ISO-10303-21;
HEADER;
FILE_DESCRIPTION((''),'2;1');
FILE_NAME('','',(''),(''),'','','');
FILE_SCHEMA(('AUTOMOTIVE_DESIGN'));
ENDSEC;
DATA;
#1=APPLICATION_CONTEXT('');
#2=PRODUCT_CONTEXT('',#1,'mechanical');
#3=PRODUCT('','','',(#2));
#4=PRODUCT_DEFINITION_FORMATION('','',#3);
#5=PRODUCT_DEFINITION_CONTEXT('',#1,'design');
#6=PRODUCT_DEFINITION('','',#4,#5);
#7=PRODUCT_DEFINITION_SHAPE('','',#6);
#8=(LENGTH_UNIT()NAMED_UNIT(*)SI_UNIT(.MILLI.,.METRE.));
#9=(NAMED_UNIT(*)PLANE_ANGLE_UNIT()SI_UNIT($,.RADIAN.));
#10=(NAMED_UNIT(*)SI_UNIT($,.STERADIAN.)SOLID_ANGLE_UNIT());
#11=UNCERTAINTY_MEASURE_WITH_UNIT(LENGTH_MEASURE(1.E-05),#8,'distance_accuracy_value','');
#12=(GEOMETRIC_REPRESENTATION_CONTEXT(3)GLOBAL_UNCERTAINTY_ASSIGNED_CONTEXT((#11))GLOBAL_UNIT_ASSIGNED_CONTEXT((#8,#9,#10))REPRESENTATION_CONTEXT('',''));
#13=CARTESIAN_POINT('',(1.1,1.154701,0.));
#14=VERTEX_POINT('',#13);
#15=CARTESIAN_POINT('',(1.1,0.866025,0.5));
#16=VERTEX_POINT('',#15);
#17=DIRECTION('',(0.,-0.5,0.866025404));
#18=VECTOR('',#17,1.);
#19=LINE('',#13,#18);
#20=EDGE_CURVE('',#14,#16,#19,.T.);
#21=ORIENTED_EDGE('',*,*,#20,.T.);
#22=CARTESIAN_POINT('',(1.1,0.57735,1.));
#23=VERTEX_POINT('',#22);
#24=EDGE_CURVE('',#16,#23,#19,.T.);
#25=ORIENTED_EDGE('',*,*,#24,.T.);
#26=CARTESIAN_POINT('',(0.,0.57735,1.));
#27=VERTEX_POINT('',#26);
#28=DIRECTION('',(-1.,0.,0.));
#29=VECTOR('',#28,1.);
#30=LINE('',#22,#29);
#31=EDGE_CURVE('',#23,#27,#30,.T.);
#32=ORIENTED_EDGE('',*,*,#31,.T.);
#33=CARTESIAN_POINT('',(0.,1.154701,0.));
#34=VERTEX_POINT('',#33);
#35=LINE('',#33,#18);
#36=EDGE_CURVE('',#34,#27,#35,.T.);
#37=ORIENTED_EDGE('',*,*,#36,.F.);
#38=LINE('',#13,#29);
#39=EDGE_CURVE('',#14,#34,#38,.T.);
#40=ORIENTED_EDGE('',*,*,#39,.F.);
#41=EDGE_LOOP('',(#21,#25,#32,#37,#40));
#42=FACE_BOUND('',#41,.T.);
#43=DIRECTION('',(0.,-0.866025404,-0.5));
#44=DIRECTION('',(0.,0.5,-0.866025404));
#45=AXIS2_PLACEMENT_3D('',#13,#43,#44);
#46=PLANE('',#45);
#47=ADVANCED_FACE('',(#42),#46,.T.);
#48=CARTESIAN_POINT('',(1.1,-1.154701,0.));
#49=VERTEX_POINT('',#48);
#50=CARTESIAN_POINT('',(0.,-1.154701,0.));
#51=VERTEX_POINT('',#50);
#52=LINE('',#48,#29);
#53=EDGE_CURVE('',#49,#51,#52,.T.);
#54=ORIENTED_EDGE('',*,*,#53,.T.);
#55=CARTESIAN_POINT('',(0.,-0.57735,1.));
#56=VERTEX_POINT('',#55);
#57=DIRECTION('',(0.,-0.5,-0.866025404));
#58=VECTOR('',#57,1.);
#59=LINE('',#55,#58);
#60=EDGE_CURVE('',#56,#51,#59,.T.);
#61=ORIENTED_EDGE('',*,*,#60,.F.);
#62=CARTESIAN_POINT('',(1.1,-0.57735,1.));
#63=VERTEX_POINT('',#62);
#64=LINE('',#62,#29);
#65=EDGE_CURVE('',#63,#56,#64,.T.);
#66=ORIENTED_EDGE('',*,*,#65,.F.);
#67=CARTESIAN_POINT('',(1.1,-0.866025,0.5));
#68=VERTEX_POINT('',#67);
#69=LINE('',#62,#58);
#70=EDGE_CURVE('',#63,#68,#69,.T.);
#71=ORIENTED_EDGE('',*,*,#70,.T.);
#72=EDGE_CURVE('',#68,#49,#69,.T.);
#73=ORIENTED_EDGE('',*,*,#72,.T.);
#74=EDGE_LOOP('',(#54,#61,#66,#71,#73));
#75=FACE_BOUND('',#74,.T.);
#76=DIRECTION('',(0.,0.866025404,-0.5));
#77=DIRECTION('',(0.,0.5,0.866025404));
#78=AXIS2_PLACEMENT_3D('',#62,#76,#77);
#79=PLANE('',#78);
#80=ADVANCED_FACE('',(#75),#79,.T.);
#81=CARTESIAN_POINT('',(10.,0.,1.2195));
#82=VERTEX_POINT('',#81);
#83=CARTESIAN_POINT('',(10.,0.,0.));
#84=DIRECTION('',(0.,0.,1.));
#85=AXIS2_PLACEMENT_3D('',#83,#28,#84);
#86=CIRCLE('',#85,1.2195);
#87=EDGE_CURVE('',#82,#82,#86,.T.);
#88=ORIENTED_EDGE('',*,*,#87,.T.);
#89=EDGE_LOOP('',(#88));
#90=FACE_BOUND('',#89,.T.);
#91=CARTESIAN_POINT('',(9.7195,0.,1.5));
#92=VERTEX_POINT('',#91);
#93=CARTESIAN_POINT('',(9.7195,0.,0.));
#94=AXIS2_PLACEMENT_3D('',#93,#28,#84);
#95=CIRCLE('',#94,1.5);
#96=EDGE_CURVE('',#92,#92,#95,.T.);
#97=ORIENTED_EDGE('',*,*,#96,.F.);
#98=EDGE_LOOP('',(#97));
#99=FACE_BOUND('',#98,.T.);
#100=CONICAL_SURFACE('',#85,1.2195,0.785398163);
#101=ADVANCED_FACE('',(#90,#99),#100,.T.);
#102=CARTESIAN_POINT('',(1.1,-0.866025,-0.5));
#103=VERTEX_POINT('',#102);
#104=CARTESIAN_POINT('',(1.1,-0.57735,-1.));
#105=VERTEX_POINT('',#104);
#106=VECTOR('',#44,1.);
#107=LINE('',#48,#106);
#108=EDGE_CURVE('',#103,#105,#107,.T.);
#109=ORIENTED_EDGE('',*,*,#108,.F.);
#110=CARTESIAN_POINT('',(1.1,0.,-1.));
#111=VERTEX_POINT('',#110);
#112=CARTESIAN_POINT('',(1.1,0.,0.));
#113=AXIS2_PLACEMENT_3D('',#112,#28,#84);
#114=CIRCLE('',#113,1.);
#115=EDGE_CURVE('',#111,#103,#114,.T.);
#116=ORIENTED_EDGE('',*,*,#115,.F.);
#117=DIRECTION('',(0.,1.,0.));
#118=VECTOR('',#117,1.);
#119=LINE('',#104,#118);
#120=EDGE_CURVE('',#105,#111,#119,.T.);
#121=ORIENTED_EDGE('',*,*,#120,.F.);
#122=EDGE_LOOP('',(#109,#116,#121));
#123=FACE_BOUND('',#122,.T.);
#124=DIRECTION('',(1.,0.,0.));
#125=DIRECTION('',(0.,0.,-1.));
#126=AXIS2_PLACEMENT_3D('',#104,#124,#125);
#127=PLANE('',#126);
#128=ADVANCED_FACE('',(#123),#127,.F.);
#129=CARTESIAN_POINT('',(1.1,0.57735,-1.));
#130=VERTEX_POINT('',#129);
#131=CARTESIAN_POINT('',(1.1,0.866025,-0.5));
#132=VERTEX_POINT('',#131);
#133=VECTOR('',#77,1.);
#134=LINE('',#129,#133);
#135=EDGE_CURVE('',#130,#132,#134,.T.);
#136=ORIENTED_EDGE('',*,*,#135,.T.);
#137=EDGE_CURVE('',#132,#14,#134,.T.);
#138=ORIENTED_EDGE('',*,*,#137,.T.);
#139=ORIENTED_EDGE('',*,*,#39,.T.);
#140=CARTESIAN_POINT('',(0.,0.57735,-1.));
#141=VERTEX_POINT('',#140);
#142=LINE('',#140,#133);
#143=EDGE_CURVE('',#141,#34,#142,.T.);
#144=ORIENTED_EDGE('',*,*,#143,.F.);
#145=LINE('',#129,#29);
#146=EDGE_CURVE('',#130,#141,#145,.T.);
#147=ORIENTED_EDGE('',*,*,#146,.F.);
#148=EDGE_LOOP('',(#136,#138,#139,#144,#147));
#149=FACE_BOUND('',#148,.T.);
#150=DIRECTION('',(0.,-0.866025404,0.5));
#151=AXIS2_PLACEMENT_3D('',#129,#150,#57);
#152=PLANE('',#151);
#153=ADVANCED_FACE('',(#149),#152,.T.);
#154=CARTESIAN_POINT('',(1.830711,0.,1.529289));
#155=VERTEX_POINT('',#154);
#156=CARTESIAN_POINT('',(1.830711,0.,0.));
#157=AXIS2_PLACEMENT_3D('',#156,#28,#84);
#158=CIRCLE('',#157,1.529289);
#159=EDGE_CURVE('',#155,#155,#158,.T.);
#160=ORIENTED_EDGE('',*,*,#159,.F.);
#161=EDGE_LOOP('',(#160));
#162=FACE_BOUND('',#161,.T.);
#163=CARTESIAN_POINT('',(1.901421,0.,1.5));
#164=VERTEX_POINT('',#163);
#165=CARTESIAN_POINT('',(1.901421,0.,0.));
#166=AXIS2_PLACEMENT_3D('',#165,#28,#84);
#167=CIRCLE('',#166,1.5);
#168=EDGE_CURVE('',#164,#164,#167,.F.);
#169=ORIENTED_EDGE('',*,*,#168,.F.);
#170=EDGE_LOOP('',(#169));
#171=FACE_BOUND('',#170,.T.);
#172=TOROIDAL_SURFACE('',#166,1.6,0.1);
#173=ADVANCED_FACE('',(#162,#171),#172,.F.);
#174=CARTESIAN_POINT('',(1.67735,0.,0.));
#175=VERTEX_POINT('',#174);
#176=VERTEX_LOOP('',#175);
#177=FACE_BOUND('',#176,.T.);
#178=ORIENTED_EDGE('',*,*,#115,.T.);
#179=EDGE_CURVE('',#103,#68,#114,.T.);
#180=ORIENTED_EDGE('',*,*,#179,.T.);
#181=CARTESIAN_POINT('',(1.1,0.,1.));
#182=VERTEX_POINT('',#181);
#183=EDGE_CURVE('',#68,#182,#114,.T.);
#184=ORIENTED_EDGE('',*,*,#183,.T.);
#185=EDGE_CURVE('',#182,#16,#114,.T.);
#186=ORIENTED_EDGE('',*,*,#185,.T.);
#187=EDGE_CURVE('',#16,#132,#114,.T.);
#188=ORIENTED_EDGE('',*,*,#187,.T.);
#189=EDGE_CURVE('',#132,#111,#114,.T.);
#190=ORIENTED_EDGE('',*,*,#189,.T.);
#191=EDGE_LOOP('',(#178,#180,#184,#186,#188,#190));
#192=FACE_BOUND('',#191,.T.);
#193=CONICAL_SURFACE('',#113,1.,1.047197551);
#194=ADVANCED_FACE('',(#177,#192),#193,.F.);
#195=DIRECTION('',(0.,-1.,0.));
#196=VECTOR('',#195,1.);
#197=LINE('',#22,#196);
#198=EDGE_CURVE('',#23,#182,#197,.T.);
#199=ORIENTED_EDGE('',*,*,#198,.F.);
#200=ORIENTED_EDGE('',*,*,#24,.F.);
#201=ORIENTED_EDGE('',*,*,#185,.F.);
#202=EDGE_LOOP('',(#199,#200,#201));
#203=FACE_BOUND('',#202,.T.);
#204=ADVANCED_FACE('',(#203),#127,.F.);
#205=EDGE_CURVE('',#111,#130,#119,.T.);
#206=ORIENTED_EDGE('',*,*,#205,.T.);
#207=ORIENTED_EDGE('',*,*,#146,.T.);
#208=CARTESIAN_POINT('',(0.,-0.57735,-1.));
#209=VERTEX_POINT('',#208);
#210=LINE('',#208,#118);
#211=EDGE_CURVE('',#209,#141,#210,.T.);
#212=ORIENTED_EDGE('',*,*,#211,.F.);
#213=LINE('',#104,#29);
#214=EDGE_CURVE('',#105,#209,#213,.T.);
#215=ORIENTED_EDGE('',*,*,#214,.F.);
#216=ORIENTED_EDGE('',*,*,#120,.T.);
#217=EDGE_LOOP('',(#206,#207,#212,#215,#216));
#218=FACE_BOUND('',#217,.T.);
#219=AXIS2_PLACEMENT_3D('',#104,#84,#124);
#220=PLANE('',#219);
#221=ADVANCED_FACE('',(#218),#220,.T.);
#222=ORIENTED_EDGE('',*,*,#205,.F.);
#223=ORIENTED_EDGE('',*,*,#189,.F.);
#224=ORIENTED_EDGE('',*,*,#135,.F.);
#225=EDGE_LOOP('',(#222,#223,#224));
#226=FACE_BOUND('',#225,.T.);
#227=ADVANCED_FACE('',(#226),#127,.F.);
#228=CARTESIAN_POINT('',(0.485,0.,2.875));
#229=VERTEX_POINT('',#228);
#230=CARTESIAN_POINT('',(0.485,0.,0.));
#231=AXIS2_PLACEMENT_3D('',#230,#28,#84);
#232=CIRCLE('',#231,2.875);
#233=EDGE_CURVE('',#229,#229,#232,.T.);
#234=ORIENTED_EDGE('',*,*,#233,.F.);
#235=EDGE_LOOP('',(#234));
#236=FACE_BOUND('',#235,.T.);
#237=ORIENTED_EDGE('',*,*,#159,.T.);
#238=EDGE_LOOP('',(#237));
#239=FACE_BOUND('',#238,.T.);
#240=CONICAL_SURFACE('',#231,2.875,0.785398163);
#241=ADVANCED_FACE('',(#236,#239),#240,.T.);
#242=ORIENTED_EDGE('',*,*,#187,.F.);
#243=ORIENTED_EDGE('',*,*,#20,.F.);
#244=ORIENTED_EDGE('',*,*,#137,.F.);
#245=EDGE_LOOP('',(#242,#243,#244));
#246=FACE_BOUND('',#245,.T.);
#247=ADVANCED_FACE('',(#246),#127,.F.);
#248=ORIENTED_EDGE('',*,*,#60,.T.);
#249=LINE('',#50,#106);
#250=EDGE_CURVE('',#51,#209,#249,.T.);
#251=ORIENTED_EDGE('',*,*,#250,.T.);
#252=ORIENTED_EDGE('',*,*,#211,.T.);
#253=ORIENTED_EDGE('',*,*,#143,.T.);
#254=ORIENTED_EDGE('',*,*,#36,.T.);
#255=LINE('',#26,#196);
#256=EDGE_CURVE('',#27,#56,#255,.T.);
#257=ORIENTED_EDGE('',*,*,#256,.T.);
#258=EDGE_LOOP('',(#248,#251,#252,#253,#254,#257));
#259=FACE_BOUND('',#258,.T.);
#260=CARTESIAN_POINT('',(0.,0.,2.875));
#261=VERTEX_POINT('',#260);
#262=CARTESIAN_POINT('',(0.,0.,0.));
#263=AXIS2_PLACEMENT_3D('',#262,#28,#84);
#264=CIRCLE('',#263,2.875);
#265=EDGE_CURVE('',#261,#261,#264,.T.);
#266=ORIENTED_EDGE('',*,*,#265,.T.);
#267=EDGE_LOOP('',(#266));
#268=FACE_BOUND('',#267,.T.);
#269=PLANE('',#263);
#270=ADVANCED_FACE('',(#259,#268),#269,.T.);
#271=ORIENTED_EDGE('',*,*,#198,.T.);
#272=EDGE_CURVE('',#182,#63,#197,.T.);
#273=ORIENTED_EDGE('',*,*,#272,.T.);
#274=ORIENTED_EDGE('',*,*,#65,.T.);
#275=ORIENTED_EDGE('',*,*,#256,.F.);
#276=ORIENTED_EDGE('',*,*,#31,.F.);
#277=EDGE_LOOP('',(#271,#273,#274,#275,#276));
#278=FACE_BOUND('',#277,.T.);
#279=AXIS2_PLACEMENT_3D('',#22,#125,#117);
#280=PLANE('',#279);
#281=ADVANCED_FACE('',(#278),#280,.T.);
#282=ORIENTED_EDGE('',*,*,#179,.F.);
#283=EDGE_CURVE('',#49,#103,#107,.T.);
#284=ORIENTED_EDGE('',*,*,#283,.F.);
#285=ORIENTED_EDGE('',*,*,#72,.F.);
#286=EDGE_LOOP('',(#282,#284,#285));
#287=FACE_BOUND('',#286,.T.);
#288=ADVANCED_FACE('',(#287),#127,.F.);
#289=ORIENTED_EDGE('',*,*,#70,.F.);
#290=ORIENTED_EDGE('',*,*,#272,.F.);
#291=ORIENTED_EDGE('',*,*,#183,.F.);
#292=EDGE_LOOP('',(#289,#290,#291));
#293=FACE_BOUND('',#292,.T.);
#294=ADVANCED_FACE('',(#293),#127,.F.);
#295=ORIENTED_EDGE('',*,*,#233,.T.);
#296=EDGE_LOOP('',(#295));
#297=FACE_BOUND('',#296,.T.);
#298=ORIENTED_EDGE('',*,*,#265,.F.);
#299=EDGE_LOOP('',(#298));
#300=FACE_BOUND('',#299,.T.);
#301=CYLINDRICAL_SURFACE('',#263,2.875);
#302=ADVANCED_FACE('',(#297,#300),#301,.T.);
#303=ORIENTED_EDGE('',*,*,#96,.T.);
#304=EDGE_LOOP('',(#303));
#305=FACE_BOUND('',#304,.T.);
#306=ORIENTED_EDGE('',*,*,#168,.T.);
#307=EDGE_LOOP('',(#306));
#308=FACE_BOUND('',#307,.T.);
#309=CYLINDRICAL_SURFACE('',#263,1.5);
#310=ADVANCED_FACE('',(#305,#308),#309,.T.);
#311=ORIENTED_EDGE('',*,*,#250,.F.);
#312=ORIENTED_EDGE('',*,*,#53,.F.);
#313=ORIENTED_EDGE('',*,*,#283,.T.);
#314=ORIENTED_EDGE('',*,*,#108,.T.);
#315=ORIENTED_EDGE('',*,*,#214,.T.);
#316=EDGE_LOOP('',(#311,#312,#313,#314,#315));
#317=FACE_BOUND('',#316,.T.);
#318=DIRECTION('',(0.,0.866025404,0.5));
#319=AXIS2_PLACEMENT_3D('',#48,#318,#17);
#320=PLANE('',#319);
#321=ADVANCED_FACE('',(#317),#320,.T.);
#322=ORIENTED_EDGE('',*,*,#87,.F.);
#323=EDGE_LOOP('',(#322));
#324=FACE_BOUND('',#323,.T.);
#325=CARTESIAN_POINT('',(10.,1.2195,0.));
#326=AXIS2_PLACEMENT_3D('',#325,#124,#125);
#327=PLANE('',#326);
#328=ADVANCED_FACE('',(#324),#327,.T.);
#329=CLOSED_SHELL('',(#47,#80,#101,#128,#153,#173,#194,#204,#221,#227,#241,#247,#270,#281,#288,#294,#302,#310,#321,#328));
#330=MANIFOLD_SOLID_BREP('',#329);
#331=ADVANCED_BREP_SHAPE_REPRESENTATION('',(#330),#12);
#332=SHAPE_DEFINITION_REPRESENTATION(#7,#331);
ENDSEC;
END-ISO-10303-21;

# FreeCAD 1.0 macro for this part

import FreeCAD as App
import Part
import Sketcher
Q = App.Units.Quantity


def edges_at(feature, points):
    """Names of the edges that pass closest to the given points."""
    edges = feature.Shape.Edges
    near = lambda p: min(range(len(edges)), key=lambda i: edges[i].distToShape(Part.Vertex(*p))[0])
    return sorted({f"Edge{near(p) + 1}" for p in points})


def add_polygon(sketch, points):
    """Adds a closed chain of lines whose ends are joined by coincident constraints."""
    first, n = sketch.GeometryCount, len(points)
    for a, b in zip(points, points[1:] + points[:1]):
        sketch.addGeometry(Part.LineSegment(App.Vector(*a, 0), App.Vector(*b, 0)), False)
    for i in range(n):
        sketch.addConstraint(Sketcher.Constraint("Coincident", first + i, 2, first + (i + 1) % n, 1))

doc = App.newDocument("Part")
body = doc.addObject("PartDesign::Body", "Body")

# Sketch on XY plane
sketch1 = body.newObject("Sketcher::SketchObject", "Sketch")
sketch1.AttachmentSupport = (doc.getObject("XY_Plane"), [""])
sketch1.MapMode = "FlatFace"
add_polygon(sketch1, [(0, 2.875), (0, 0), (10, 0), (10, 1.2195), (9.7195, 1.5), (1.86, 1.5), (0.485, 2.875)])  # lines 0-6
sketch1.addConstraint(Sketcher.Constraint("Vertical", 0))
sketch1.addConstraint(Sketcher.Constraint("Horizontal", 1))
sketch1.addConstraint(Sketcher.Constraint("Vertical", 2))
sketch1.addConstraint(Sketcher.Constraint("Horizontal", 4))
sketch1.addConstraint(Sketcher.Constraint("Horizontal", 6))
sketch1.addConstraint(Sketcher.Constraint("Coincident", 0, 2, -1, 1))
sketch1.addConstraint(Sketcher.Constraint("Parallel", 3, 5))
sketch1.addConstraint(Sketcher.Constraint("DistanceX", 1, 1, 1, 2, 10.0))
sketch1.addConstraint(Sketcher.Constraint("Angle", 3, Q("135 deg")))
sketch1.addConstraint(Sketcher.Constraint("DistanceY", -1, 1, 3, 2, 1.5))
sketch1.addConstraint(Sketcher.Constraint("DistanceX", 6, 2, 6, 1, 0.485))
sketch1.addConstraint(Sketcher.Constraint("DistanceY", 0, 2, 0, 1, 2.875))
sketch1.addConstraint(Sketcher.Constraint("DistanceX", 4, 2, 4, 1, 7.8595))
revolution = body.newObject("PartDesign::Revolution", "Revolution")
revolution.Profile = sketch1
revolution.ReferenceAxis = (sketch1, ["H_Axis"])
revolution.Angle = 360
doc.recompute()

fillet = body.newObject("PartDesign::Fillet", "Fillet")
fillet.Base = (revolution, edges_at(revolution, [(1.86, 0, -1.5)]))
fillet.Radius = 0.1

# Sketch on XY plane
sketch2 = body.newObject("Sketcher::SketchObject", "Sketch001")
sketch2.AttachmentSupport = (doc.getObject("XY_Plane"), [""])
sketch2.MapMode = "FlatFace"
add_polygon(sketch2, [(1.1, 1), (0, 1), (0, 0), (1.67735, 0)])  # lines 0-3
sketch2.addConstraint(Sketcher.Constraint("Horizontal", 0))
sketch2.addConstraint(Sketcher.Constraint("Vertical", 1))
sketch2.addConstraint(Sketcher.Constraint("Horizontal", 2))
sketch2.addConstraint(Sketcher.Constraint("Coincident", 1, 2, -1, 1))
sketch2.addConstraint(Sketcher.Constraint("DistanceY", 1, 2, 1, 1, 1.0))
sketch2.addConstraint(Sketcher.Constraint("Angle", 3, Q("120 deg")))
sketch2.addConstraint(Sketcher.Constraint("DistanceX", 0, 2, 0, 1, 1.1))
groove = body.newObject("PartDesign::Groove", "Groove")
groove.Profile = sketch2
groove.ReferenceAxis = (sketch2, ["H_Axis"])
groove.Angle = 360

# Sketch on YZ plane
sketch3 = body.newObject("Sketcher::SketchObject", "Sketch002")
sketch3.AttachmentSupport = (doc.getObject("YZ_Plane"), [""])
sketch3.MapMode = "FlatFace"
add_polygon(sketch3, [(0.57735, -1), (-0.57735, -1), (-1.154701, 0), (-0.57735, 1), (0.57735, 1), (1.154701, 0)])  # lines 0-5
sketch3.addConstraint(Sketcher.Constraint("Horizontal", 0))
sketch3.addConstraint(Sketcher.Constraint("Horizontal", 3))
sketch3.addConstraint(Sketcher.Constraint("Symmetric", 0, 2, 3, 2, -1, 1))
sketch3.addConstraint(Sketcher.Constraint("Symmetric", 1, 2, 4, 2, -1, 1))
sketch3.addConstraint(Sketcher.Constraint("PointOnObject", 1, 2, -1))
sketch3.addConstraint(Sketcher.Constraint("Parallel", 2, 5))
sketch3.addConstraint(Sketcher.Constraint("Vertical", 0, 2, 2, 2))
sketch3.addConstraint(Sketcher.Constraint("Angle", 1, Q("120 deg")))
sketch3.addConstraint(Sketcher.Constraint("DistanceY", 0, 2, -1, 1, 1.0))
sketch3.addConstraint(Sketcher.Constraint("DistanceX", 0, 2, 0, 1, 1.154701))
pocket1 = body.newObject("PartDesign::Pocket", "Pocket")
pocket1.Profile = sketch3
pocket1.Length = 1.1
pocket1.Reversed = True

doc.recompute()
